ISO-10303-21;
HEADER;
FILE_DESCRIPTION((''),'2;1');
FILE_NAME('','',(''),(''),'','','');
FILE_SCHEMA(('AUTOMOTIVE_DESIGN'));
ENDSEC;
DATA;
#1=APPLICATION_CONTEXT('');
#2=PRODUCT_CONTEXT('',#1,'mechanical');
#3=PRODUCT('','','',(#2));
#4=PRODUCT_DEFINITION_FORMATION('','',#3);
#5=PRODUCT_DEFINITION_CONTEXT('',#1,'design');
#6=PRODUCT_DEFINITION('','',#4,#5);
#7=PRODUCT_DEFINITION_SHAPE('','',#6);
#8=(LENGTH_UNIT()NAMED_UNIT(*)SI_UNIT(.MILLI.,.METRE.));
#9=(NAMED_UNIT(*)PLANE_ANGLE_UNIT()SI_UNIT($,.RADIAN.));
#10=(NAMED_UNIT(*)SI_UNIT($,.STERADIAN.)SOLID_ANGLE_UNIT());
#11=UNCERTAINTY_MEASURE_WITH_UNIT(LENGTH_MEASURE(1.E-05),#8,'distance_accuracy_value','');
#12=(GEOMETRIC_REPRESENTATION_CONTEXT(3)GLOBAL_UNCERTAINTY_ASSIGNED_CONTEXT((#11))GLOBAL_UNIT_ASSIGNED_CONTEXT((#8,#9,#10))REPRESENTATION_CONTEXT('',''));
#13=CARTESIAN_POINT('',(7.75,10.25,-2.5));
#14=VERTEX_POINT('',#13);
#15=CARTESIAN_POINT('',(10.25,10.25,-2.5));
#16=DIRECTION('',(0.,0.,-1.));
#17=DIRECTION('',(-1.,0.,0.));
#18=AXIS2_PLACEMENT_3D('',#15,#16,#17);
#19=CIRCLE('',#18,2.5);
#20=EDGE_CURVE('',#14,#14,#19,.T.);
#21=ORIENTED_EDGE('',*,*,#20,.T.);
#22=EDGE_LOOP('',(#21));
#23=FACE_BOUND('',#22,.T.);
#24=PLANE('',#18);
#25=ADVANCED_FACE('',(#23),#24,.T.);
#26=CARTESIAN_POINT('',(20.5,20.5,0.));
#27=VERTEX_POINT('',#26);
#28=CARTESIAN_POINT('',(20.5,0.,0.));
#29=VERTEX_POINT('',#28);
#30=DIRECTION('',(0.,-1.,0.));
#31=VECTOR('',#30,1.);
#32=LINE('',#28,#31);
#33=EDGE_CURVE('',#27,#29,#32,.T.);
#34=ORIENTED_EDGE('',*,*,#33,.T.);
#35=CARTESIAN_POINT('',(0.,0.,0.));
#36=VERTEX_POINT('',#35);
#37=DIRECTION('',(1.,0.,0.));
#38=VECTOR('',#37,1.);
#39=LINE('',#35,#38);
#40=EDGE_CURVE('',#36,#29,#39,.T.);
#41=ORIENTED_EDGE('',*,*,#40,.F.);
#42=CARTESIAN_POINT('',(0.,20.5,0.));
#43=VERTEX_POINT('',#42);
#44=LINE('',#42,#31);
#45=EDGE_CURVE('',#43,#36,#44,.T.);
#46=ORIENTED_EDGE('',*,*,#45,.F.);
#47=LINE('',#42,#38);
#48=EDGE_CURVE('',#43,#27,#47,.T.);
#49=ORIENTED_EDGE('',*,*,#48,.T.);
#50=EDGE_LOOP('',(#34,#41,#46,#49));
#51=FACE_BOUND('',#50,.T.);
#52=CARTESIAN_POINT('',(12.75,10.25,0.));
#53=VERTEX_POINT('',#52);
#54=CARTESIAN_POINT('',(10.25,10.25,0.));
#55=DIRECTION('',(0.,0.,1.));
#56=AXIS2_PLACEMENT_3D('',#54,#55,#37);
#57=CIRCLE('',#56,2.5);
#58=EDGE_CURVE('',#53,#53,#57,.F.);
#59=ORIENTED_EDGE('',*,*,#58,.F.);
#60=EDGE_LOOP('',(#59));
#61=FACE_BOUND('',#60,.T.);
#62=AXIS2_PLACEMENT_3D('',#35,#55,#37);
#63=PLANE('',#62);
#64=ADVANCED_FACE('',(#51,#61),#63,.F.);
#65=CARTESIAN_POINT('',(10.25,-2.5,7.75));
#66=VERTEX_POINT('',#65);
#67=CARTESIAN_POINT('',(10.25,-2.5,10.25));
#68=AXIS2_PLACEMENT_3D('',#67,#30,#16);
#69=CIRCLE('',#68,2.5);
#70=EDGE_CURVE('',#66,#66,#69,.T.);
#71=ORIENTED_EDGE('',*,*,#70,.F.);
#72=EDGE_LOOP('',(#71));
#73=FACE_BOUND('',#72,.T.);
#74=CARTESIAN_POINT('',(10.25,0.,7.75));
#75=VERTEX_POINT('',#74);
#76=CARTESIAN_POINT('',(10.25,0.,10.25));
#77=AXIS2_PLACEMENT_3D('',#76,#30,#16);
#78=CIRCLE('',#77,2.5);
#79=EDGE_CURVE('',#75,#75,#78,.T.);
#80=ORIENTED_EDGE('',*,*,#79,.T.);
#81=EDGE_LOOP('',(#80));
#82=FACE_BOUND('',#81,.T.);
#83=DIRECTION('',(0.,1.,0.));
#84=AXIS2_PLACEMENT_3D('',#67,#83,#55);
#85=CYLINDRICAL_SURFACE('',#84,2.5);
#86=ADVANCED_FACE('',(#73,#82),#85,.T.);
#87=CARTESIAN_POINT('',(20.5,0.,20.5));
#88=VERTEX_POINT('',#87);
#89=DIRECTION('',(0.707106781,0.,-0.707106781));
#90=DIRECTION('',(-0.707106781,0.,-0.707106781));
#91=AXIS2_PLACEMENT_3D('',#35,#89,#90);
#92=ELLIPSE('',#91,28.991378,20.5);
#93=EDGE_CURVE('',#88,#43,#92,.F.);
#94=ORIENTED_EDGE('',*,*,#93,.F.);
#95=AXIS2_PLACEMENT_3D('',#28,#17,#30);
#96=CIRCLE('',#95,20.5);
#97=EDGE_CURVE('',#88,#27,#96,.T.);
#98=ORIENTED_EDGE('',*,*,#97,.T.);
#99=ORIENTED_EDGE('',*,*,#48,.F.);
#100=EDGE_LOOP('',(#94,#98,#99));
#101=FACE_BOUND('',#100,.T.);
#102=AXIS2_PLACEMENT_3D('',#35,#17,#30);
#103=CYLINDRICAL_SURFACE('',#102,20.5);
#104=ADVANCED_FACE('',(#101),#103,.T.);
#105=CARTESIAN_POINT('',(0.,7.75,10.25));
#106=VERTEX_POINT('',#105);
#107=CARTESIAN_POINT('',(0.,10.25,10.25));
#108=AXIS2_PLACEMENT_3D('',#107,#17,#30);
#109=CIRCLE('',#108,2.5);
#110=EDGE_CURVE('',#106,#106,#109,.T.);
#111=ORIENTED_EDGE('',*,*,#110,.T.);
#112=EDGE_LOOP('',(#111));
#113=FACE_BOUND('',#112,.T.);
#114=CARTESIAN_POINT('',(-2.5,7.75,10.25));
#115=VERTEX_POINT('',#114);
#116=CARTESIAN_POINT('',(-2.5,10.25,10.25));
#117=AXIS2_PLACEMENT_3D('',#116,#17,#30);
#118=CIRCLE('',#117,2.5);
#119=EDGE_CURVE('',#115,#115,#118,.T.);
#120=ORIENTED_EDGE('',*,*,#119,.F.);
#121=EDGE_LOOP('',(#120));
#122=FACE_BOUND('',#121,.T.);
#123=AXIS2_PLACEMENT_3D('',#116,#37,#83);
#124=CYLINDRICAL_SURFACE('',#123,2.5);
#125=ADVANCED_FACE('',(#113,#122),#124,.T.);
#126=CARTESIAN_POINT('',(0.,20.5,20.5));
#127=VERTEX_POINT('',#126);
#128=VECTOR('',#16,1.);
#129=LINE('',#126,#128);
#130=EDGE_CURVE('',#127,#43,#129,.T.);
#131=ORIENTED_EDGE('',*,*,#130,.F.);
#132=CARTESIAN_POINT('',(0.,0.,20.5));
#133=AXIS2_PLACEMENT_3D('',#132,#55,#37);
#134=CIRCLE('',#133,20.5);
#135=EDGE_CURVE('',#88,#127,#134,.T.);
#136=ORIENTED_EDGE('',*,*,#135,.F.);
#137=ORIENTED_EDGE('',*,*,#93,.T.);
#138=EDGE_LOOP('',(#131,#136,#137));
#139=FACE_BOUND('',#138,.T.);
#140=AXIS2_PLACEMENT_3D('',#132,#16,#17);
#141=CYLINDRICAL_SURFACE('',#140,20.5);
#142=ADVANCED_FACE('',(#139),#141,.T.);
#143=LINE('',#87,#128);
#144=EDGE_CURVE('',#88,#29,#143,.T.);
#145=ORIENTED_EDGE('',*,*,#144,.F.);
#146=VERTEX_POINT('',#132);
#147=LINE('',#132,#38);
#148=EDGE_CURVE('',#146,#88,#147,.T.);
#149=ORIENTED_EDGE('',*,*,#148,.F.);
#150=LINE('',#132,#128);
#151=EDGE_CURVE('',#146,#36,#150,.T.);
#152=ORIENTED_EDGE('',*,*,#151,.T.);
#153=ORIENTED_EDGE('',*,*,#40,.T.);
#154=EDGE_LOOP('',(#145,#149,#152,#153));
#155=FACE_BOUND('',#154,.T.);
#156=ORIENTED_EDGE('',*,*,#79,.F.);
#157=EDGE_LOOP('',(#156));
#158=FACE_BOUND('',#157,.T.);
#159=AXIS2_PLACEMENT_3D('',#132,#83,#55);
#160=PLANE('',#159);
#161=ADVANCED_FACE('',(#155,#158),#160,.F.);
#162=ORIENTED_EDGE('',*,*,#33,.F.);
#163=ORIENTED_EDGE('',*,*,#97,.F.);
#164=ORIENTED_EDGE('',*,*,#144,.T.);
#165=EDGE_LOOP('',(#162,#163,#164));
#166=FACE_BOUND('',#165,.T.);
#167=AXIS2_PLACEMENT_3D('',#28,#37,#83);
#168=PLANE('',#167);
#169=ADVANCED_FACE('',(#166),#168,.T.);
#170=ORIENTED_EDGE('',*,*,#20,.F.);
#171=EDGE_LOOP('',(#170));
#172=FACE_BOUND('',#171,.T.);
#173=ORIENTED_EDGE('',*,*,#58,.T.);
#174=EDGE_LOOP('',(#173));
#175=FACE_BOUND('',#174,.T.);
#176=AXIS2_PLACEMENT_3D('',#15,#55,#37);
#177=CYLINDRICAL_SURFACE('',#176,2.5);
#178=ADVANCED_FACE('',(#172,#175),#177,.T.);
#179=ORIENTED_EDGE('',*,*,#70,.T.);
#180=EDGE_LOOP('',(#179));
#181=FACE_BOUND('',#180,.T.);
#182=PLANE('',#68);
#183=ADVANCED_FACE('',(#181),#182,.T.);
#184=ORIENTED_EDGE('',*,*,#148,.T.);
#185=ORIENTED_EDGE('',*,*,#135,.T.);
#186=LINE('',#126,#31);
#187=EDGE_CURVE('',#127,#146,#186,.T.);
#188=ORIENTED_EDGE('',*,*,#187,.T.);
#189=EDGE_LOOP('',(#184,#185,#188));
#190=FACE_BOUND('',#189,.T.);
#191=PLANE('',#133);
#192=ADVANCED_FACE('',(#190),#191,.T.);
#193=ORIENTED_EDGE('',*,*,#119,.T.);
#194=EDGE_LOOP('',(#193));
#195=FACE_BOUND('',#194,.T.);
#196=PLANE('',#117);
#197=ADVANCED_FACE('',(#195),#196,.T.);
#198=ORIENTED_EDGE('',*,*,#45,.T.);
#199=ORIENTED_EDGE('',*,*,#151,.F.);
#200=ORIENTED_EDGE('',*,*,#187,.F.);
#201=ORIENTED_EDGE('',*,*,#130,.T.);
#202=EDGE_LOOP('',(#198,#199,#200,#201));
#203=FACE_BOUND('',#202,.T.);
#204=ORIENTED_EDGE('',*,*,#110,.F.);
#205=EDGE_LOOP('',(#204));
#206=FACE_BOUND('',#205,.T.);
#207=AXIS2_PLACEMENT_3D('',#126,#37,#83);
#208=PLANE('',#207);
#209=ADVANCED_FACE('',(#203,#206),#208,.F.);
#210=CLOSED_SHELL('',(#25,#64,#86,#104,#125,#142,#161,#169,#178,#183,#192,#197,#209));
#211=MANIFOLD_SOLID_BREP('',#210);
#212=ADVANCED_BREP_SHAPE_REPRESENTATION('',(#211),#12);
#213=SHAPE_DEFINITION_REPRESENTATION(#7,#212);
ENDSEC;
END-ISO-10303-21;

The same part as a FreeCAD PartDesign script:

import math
import FreeCAD as App
import Part
import Sketcher
from FreeCAD import Vector
Q = App.Units.Quantity


def add_polygon(sketch, points):
    """Adds a closed chain of lines whose ends are joined by coincident constraints."""
    first, n = sketch.GeometryCount, len(points)
    for a, b in zip(points, points[1:] + points[:1]):
        sketch.addGeometry(Part.LineSegment(App.Vector(*a, 0), App.Vector(*b, 0)), False)
    for i in range(n):
        sketch.addConstraint(Sketcher.Constraint("Coincident", first + i, 2, first + (i + 1) % n, 1))

doc = App.newDocument("Part")
params = doc.addObject("Spreadsheet::Sheet", "Params")
for row, (alias, value) in enumerate([
    ("sketch1_radius", "20.5 mm"),
    ("pad1_length", "20.5 mm"),
    ("sketch2_diameter", "5 mm"),
    ("pad2_length", "2.5 mm"),
    ("sketch3_diameter", "5 mm"),
    ("pad3_length", "2.5 mm"),
    ("sketch4_width", "20.5 mm"),
    ("revolution_angle", "90 deg"),
    ("sketch5_diameter", "5 mm"),
    ("pad4_length", "2.5 mm"),
], start=1):
    params.set(f"A{row}", alias)
    params.set(f"B{row}", "=" + value)
    params.setAlias(f"B{row}", alias)

body = doc.addObject("PartDesign::Body", "Body")

sketch1 = body.newObject("Sketcher::SketchObject", "Sketch")
sketch1.AttachmentSupport = (doc.getObject("XY_Plane"), [""])
sketch1.MapMode = "FlatFace"
sketch1.addGeometry([
    Part.LineSegment(Vector(0, 20, 0), Vector(0, 0, 0)),
    Part.LineSegment(Vector(0, 0, 0), Vector(20, 0, 0)),
    Part.ArcOfCircle(Part.Circle(Vector(0, 0, 0), Vector(0, 0, 1), 21), math.radians(0), math.radians(90)),
], False)
sketch1.addConstraint([
    Sketcher.Constraint("Coincident", 0, 2, 1, 1),
    Sketcher.Constraint("Coincident", 1, 2, 2, 1),
    Sketcher.Constraint("Coincident", 2, 2, 0, 1),
    Sketcher.Constraint("Vertical", 0),
    Sketcher.Constraint("Horizontal", 1),
    Sketcher.Constraint("Coincident", 2, 3, -1, 1),
    Sketcher.Constraint("Coincident", 0, 2, -1, 1),
    Sketcher.Constraint("Radius", 2, Q("20.5 mm")),
])
sketch1.setExpression("Constraints[7]", "Params.sketch1_radius")
pad1 = body.newObject("PartDesign::Pad", "Pad")
pad1.Profile = sketch1
pad1.setExpression("Length", "Params.pad1_length")

sketch2 = body.newObject("Sketcher::SketchObject", "Sketch001")
sketch2.AttachmentSupport = (doc.getObject("YZ_Plane"), [""])
sketch2.MapMode = "FlatFace"
sketch2.addGeometry(Part.Circle(Vector(10.2, 10.2, 0), Vector(0, 0, 1), 2.5), False)
sketch2.addConstraint([
    Sketcher.Constraint("Diameter", 0, Q("5 mm")),
    Sketcher.Constraint("DistanceX", -1, 1, 0, 3, Q("10.25 mm")),
    Sketcher.Constraint("DistanceY", -1, 1, 0, 3, Q("10.25 mm")),
])
sketch2.setExpression("Constraints[0]", "Params.sketch2_diameter")
pad2 = body.newObject("PartDesign::Pad", "Pad001")
pad2.Profile = sketch2
pad2.setExpression("Length", "Params.pad2_length")
pad2.Reversed = True

sketch3 = body.newObject("Sketcher::SketchObject", "Sketch002")
sketch3.AttachmentSupport = (doc.getObject("XZ_Plane"), [""])
sketch3.MapMode = "FlatFace"
sketch3.addGeometry(Part.Circle(Vector(10.2, 10.2, 0), Vector(0, 0, 1), 2.5), False)
sketch3.addConstraint([
    Sketcher.Constraint("Diameter", 0, Q("5 mm")),
    Sketcher.Constraint("DistanceX", -1, 1, 0, 3, Q("10.25 mm")),
    Sketcher.Constraint("DistanceY", -1, 1, 0, 3, Q("10.25 mm")),
])
sketch3.setExpression("Constraints[0]", "Params.sketch3_diameter")
pad3 = body.newObject("PartDesign::Pad", "Pad002")
pad3.Profile = sketch3
pad3.setExpression("Length", "Params.pad3_length")

sketch4 = body.newObject("Sketcher::SketchObject", "Sketch003")
sketch4.AttachmentSupport = (doc.getObject("XY_Plane"), [""])
sketch4.MapMode = "FlatFace"
add_polygon(sketch4, [(20, 20), (20, 0), (0, 0), (0, 20)])
sketch4.addConstraint([
    Sketcher.Constraint("Vertical", 0),
    Sketcher.Constraint("Horizontal", 1),
    Sketcher.Constraint("Vertical", 2),
    Sketcher.Constraint("Horizontal", 3),
    Sketcher.Constraint("Coincident", 1, 2, -1, 1),
    Sketcher.Constraint("Equal", 3, 0),
    Sketcher.Constraint("DistanceX", 1, 2, 1, 1, Q("20.5 mm")),
])
sketch4.setExpression("Constraints[10]", "Params.sketch4_width")
revolution = body.newObject("PartDesign::Revolution", "Revolution")
revolution.Profile = sketch4
revolution.ReferenceAxis = (sketch4, ["H_Axis"])
revolution.setExpression("Angle", "Params.revolution_angle")

sketch5 = body.newObject("Sketcher::SketchObject", "Sketch004")
sketch5.AttachmentSupport = (doc.getObject("XY_Plane"), [""])
sketch5.MapMode = "FlatFace"
sketch5.addGeometry(Part.Circle(Vector(10.2, 10.2, 0), Vector(0, 0, 1), 2.5), False)
sketch5.addConstraint([
    Sketcher.Constraint("Diameter", 0, Q("5 mm")),
    Sketcher.Constraint("DistanceX", -1, 1, 0, 3, Q("10.25 mm")),
    Sketcher.Constraint("DistanceY", -1, 1, 0, 3, Q("10.25 mm")),
])
sketch5.setExpression("Constraints[0]", "Params.sketch5_diameter")
pad4 = body.newObject("PartDesign::Pad", "Pad003")
pad4.Profile = sketch5
pad4.setExpression("Length", "Params.pad4_length")
pad4.Reversed = True

doc.recompute()
